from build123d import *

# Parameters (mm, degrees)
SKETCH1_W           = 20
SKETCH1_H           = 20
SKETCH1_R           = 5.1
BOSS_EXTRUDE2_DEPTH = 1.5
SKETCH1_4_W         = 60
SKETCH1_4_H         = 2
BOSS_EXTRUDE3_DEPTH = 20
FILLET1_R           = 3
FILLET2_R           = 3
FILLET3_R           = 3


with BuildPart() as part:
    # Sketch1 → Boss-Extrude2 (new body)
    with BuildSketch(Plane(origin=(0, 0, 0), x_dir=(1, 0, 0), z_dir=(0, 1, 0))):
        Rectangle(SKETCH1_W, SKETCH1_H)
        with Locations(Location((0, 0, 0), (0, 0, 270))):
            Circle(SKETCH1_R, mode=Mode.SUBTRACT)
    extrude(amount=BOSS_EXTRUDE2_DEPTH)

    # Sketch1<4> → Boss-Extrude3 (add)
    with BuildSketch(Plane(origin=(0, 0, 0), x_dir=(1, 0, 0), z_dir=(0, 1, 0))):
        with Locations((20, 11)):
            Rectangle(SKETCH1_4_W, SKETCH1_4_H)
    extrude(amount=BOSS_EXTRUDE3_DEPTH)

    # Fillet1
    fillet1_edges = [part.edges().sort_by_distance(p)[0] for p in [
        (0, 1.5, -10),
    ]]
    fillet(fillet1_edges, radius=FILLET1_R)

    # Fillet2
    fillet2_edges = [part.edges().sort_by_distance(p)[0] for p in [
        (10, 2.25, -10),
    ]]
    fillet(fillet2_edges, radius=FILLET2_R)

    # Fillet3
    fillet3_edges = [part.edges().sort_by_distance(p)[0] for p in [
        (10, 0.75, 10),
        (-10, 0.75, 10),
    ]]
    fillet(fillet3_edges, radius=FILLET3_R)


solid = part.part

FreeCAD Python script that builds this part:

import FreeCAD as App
import Part
import Sketcher
Q = App.Units.Quantity


def edges_at(feature, points):
    """Names of the edges that pass closest to the given points."""
    edges = feature.Shape.Edges
    near = lambda p: min(range(len(edges)), key=lambda i: edges[i].distToShape(Part.Vertex(*p))[0])
    return sorted({f"Edge{near(p) + 1}" for p in points})


def add_polygon(sketch, points):
    """Adds a closed chain of lines whose ends are joined by coincident constraints."""
    first, n = sketch.GeometryCount, len(points)
    for a, b in zip(points, points[1:] + points[:1]):
        sketch.addGeometry(Part.LineSegment(App.Vector(*a, 0), App.Vector(*b, 0)), False)
    for i in range(n):
        sketch.addConstraint(Sketcher.Constraint("Coincident", first + i, 2, first + (i + 1) % n, 1))

doc = App.newDocument("Part")
body = doc.addObject("PartDesign::Body", "Body")

# Sketch on XZ plane
sketch1 = doc.addObject("Sketcher::SketchObject", "Sketch")
body.addObject(sketch1)
sketch1.AttachmentSupport = (doc.XZ_Plane, [""])
sketch1.MapMode = "FlatFace"
add_polygon(sketch1, [(-10, -10), (-10, 10), (10, 10), (10, -10)])  # lines 0-3
sketch1.addGeometry(Part.Circle(App.Vector(0, 0, 0), App.Vector(0, 0, 1), 5), False)  # 4
sketch1.addConstraint([
    Sketcher.Constraint("Vertical", 0),
    Sketcher.Constraint("Horizontal", 1),
    Sketcher.Constraint("Vertical", 2),
    Sketcher.Constraint("Horizontal", 3),
    Sketcher.Constraint("Coincident", 4, 3, -1, 1),
    Sketcher.Constraint("Symmetric", 0, 2, 2, 2, -1, 1),
    Sketcher.Constraint("Equal", 3, 0),
    Sketcher.Constraint("Diameter", 4, Q("10.2 mm")),
    Sketcher.Constraint("DistanceX", 1, 1, 1, 2, Q("20 mm")),
])
pad1 = doc.addObject("PartDesign::Pad", "Pad")
body.addObject(pad1)
pad1.Profile = sketch1
pad1.Length = 1.5
pad1.Reversed = True

# Sketch on XZ plane
sketch2 = doc.addObject("Sketcher::SketchObject", "Sketch001")
body.addObject(sketch2)
sketch2.AttachmentSupport = (doc.XZ_Plane, [""])
sketch2.MapMode = "FlatFace"
add_polygon(sketch2, [(-10, -12), (-10, -10), (50, -10), (50, -12)])  # lines 0-3
sketch2.addConstraint([
    Sketcher.Constraint("Vertical", 0),
    Sketcher.Constraint("Horizontal", 1),
    Sketcher.Constraint("Vertical", 2),
    Sketcher.Constraint("Horizontal", 3),
    Sketcher.Constraint("DistanceX", 1, 1, 1, 2, Q("60 mm")),
    Sketcher.Constraint("DistanceY", 0, 1, 0, 2, Q("2 mm")),
    Sketcher.Constraint("DistanceX", 0, 2, -1, 1, Q("10 mm")),
    Sketcher.Constraint("DistanceY", 0, 2, -1, 1, Q("10 mm")),
])
pad2 = doc.addObject("PartDesign::Pad", "Pad001")
body.addObject(pad2)
pad2.Profile = sketch2
pad2.Length = 20
pad2.Reversed = True
doc.recompute()

fillet = doc.addObject("PartDesign::Fillet", "Fillet")
body.addObject(fillet)
fillet.Base = (pad2, edges_at(pad2, [(0, 1.5, -10)]))
fillet.Radius = 3
doc.recompute()

fillet2 = doc.addObject("PartDesign::Fillet", "Fillet001")
body.addObject(fillet2)
fillet2.Base = (fillet, edges_at(fillet, [(10, 2.25, -10)]))
fillet2.Radius = 3
doc.recompute()

fillet3 = doc.addObject("PartDesign::Fillet", "Fillet002")
body.addObject(fillet3)
fillet3.Base = (fillet2, edges_at(fillet2, [(10, 0.75, 10), (-10, 0.75, 10)]))
fillet3.Radius = 3

doc.recompute()
